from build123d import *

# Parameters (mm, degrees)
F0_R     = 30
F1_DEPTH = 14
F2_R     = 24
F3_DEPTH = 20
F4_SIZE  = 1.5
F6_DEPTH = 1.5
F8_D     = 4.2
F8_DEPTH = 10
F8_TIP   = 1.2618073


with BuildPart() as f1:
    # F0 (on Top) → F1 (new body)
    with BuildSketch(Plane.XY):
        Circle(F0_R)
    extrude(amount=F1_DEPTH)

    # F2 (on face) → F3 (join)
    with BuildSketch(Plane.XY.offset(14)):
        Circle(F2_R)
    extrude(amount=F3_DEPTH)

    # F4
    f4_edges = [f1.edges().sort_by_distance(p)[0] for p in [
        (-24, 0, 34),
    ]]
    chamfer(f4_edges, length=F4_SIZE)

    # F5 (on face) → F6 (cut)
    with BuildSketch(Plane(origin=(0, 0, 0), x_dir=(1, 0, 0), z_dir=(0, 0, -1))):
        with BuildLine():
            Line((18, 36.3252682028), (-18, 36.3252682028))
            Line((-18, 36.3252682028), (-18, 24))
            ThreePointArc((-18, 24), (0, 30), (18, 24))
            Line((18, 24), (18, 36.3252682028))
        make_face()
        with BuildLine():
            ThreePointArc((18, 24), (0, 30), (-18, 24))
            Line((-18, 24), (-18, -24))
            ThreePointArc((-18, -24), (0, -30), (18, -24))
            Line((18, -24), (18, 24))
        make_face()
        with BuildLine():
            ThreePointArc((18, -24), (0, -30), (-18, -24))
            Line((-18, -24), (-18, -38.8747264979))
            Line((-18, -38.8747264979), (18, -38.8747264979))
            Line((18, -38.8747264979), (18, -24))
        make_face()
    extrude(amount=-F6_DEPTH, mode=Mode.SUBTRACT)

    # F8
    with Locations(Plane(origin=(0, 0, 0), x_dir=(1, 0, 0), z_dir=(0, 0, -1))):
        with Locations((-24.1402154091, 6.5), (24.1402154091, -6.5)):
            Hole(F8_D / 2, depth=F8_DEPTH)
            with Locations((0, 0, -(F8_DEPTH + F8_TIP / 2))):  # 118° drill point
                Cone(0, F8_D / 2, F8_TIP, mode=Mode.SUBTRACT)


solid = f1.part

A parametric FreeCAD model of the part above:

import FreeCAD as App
import Part
import Sketcher

V = App.Vector
Q = App.Units.Quantity


def edges_at(feature, points):
    """Names of the edges that pass closest to the given points."""
    edges = feature.Shape.Edges
    near = lambda p: min(range(len(edges)), key=lambda i: edges[i].distToShape(Part.Vertex(*p))[0])
    return sorted({f"Edge{near(p) + 1}" for p in points})


def add_polygon(sketch, points):
    """Adds a closed chain of lines whose ends are joined by coincident constraints."""
    first, n = sketch.GeometryCount, len(points)
    for a, b in zip(points, points[1:] + points[:1]):
        sketch.addGeometry(Part.LineSegment(App.Vector(*a, 0), App.Vector(*b, 0)), False)
    for i in range(n):
        sketch.addConstraint(Sketcher.Constraint("Coincident", first + i, 2, first + (i + 1) % n, 1))

doc = App.newDocument("Part")
params = doc.addObject("Spreadsheet::Sheet", "Params")
for row, (alias, value) in enumerate([
    ("sketch1_diameter", "60 mm"),
    ("pad1_length", "14 mm"),
    ("sketch2_diameter", "48 mm"),
    ("pad2_length", "20 mm"),
    ("chamfer_size", "1.5 mm"),
    ("sketch3_width", "36 mm"),
    ("pocket1_length", "1.5 mm"),
    ("sketch4_diameter", "4.2 mm"),
    ("hole_diameter", "4.2 mm"),
    ("hole_depth", "10 mm"),
], start=1):
    params.set(f"A{row}", alias)
    params.set(f"B{row}", "=" + value)
    params.setAlias(f"B{row}", alias)

body = doc.addObject("PartDesign::Body", "Body")

# Sketch on XY plane
sketch1 = body.newObject("Sketcher::SketchObject", "Sketch")
sketch1.AttachmentSupport = (doc.getObject("XY_Plane"), [""])
sketch1.MapMode = "FlatFace"
sketch1.addGeometry(Part.Circle(V(0, 0, 0), V(0, 0, 1), 30), False)
sketch1.addConstraint([
    Sketcher.Constraint("Coincident", 0, 3, -1, 1),
    Sketcher.Constraint("Diameter", 0, Q("60 mm")),
])
sketch1.setExpression("Constraints[1]", "Params.sketch1_diameter")
pad1 = body.newObject("PartDesign::Pad", "Pad")
pad1.Profile = sketch1
pad1.setExpression("Length", "Params.pad1_length")

# Sketch on XY plane
sketch2 = body.newObject("Sketcher::SketchObject", "Sketch001")
sketch2.AttachmentSupport = (doc.getObject("XY_Plane"), [""])
sketch2.MapMode = "FlatFace"
sketch2.AttachmentOffset = App.Placement(V(0, 0, 14), App.Rotation())
sketch2.addGeometry(Part.Circle(V(0, 0, 0), V(0, 0, 1), 24), False)
sketch2.addConstraint([
    Sketcher.Constraint("Coincident", 0, 3, -1, 1),
    Sketcher.Constraint("Diameter", 0, Q("48 mm")),
])
sketch2.setExpression("Constraints[1]", "Params.sketch2_diameter")
pad2 = body.newObject("PartDesign::Pad", "Pad001")
pad2.Profile = sketch2
pad2.setExpression("Length", "Params.pad2_length")
doc.recompute()

chamfer = body.newObject("PartDesign::Chamfer", "Chamfer")
chamfer.Base = (pad2, edges_at(pad2, [(-24, 0, 34)]))
chamfer.setExpression("Size", "Params.chamfer_size")

# Sketch on XY plane
sketch3 = body.newObject("Sketcher::SketchObject", "Sketch002")
sketch3.AttachmentSupport = (doc.getObject("XY_Plane"), [""])
sketch3.MapMode = "FlatFace"
add_polygon(sketch3, [(18, -36.325268), (-18, -36.325268), (-18, 38.874726), (18, 38.874726)])  # lines 0-3
sketch3.addConstraint([
    Sketcher.Constraint("Horizontal", 0),
    Sketcher.Constraint("Vertical", 1),
    Sketcher.Constraint("Horizontal", 2),
    Sketcher.Constraint("Vertical", 3),
    Sketcher.Constraint("DistanceX", 0, 2, 0, 1, Q("36 mm")),
    Sketcher.Constraint("DistanceX", 0, 2, -1, 1, Q("18 mm")),
    Sketcher.Constraint("DistanceY", 1, 1, 1, 2, Q("75.199995 mm")),
    Sketcher.Constraint("DistanceY", 0, 2, -1, 1, Q("36.325268 mm")),
])
sketch3.setExpression("Constraints[8]", "Params.sketch3_width")
pocket1 = body.newObject("PartDesign::Pocket", "Pocket")
pocket1.Profile = sketch3
pocket1.setExpression("Length", "Params.pocket1_length")
pocket1.Reversed = True

# Sketch on XY plane
sketch4 = body.newObject("Sketcher::SketchObject", "Sketch003")
sketch4.AttachmentSupport = (doc.getObject("XY_Plane"), [""])
sketch4.MapMode = "FlatFace"
sketch4.addGeometry([
    Part.Circle(V(-24.140215, -6.5, 0), V(0, 0, 1), 2.1),
    Part.Circle(V(24.140215, 6.5, 0), V(0, 0, 1), 2.1),
], False)
sketch4.addConstraint([
    Sketcher.Constraint("Equal", 0, 1),
    Sketcher.Constraint("Symmetric", 0, 3, 1, 3, -1, 1),
    Sketcher.Constraint("Diameter", 0, Q("4.2 mm")),
    Sketcher.Constraint("DistanceY", 0, 3, 1, 3, Q("13 mm")),
    Sketcher.Constraint("DistanceX", 0, 3, 1, 3, Q("48.280431 mm")),
])
sketch4.setExpression("Constraints[2]", "Params.sketch4_diameter")
doc.recompute()
hole = body.newObject("PartDesign::Hole", "Hole")
hole.Profile = sketch4
hole.ThreadType = "None"
hole.setExpression("Diameter", "Params.hole_diameter")
hole.DepthType = "Dimension"
hole.setExpression("Depth", "Params.hole_depth")
hole.DrillPoint = "Angled"
hole.DrillPointAngle = 118
hole.Reversed = True

doc.recompute()
